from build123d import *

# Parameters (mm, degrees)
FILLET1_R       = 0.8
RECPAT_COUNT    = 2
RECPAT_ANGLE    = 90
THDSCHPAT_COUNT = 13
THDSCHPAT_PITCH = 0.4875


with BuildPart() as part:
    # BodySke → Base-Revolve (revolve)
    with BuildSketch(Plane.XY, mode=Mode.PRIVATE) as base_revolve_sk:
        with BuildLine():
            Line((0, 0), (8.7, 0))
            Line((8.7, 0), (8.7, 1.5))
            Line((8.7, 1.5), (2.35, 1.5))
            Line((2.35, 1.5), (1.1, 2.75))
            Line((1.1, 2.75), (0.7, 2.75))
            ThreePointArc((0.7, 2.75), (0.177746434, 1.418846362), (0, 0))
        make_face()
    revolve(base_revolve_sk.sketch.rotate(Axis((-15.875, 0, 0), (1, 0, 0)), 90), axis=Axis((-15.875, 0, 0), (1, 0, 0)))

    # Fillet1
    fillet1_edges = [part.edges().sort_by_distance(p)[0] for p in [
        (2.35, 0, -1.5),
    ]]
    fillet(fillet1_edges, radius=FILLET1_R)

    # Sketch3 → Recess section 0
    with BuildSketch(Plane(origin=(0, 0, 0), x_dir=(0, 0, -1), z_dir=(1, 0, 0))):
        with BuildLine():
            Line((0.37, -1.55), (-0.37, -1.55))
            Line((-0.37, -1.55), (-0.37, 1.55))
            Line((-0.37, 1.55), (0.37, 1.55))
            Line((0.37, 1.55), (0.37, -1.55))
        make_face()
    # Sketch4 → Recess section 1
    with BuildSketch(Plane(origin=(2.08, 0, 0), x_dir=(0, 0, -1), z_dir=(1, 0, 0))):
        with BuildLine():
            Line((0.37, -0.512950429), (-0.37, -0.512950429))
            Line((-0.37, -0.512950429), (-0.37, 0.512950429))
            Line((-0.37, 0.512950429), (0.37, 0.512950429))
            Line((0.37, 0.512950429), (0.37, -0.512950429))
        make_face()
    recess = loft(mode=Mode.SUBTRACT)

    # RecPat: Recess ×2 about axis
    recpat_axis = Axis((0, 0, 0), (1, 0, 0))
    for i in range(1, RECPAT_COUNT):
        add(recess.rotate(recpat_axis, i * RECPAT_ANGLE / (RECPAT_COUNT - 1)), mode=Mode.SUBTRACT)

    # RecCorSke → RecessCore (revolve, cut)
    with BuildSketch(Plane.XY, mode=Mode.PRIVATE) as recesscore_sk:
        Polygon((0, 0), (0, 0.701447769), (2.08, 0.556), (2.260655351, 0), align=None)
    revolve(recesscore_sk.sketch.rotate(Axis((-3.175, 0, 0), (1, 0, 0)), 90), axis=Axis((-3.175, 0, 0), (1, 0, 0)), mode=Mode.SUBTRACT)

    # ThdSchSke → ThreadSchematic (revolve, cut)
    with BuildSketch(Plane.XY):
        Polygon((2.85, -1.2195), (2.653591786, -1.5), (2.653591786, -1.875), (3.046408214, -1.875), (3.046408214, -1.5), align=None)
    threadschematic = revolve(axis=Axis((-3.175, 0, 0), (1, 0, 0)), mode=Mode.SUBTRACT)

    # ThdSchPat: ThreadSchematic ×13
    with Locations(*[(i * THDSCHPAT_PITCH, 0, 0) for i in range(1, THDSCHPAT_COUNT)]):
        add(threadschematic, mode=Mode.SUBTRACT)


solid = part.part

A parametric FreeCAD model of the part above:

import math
import FreeCAD as App
import Part
import Sketcher
from FreeCAD import Vector
Q = App.Units.Quantity


def edges_at(feature, points):
    """Names of the edges that pass closest to the given points."""
    edges = feature.Shape.Edges
    near = lambda p: min(range(len(edges)), key=lambda i: edges[i].distToShape(Part.Vertex(*p))[0])
    return sorted({f"Edge{near(p) + 1}" for p in points})

doc = App.newDocument("Part")
body = doc.addObject("PartDesign::Body", "Body")

# Sketch on XY plane
sketch1 = doc.addObject("Sketcher::SketchObject", "Sketch")
body.addObject(sketch1)
sketch1.AttachmentSupport = (doc.XY_Plane, [""])
sketch1.MapMode = "FlatFace"
sketch1.addGeometry([
    Part.LineSegment(Vector(0, 0, 0), Vector(8.7, 0, 0)),  # 0
    Part.LineSegment(Vector(8.7, 0, 0), Vector(8.7, 1.5, 0)),  # 1
    Part.LineSegment(Vector(8.7, 1.5, 0), Vector(2.35, 1.5, 0)),  # 2
    Part.LineSegment(Vector(2.35, 1.5, 0), Vector(1.1, 2.75, 0)),  # 3
    Part.LineSegment(Vector(1.1, 2.75, 0), Vector(0.7, 2.75, 0)),  # 4
    Part.ArcOfCircle(Part.Circle(Vector(5.75, 0, 0), Vector(0, 0, 1), 5.75), math.radians(151), math.radians(180)),  # 5
], False)
sketch1.addConstraint([
    Sketcher.Constraint("Coincident", 0, 2, 1, 1),
    Sketcher.Constraint("Coincident", 1, 2, 2, 1),
    Sketcher.Constraint("Coincident", 2, 2, 3, 1),
    Sketcher.Constraint("Coincident", 3, 2, 4, 1),
    Sketcher.Constraint("Coincident", 4, 2, 5, 1),
    Sketcher.Constraint("Coincident", 5, 2, 0, 1),
    Sketcher.Constraint("Horizontal", 0),
    Sketcher.Constraint("Vertical", 1),
    Sketcher.Constraint("Horizontal", 2),
    Sketcher.Constraint("Horizontal", 4),
    Sketcher.Constraint("Coincident", 5, 2, -1, 1),
    Sketcher.Constraint("PointOnObject", 5, 3, -1),
    Sketcher.Constraint("Angle", 3, Q("135 deg")),
    Sketcher.Constraint("DistanceX", 0, 1, 0, 2, 8.7),
    Sketcher.Constraint("DistanceX", 4, 2, 4, 1, 0.4),
    Sketcher.Constraint("DistanceY", 1, 1, 1, 2, 1.5),
    Sketcher.Constraint("DistanceX", 4, 2, 1, 2, 8.0),
    Sketcher.Constraint("DistanceX", 2, 2, 2, 1, 6.35),
])
revolution = doc.addObject("PartDesign::Revolution", "Revolution")
body.addObject(revolution)
revolution.Profile = sketch1
revolution.ReferenceAxis = (sketch1, ["H_Axis"])
revolution.Angle = 360
doc.recompute()

fillet = doc.addObject("PartDesign::Fillet", "Fillet")
body.addObject(fillet)
fillet.Base = (revolution, edges_at(revolution, [(2.35, 0, -1.5)]))
fillet.Radius = 0.8

# Sketch on YZ plane
sketch2 = doc.addObject("Sketcher::SketchObject", "Sketch001")
body.addObject(sketch2)
sketch2.AttachmentSupport = (doc.YZ_Plane, [""])
sketch2.MapMode = "FlatFace"
sketch2.addGeometry([
    Part.LineSegment(Vector(-1.6, 0.4, 0), Vector(-1.6, -0.4, 0)),
    Part.LineSegment(Vector(-1.6, -0.4, 0), Vector(1.6, -0.4, 0)),
    Part.LineSegment(Vector(1.6, -0.4, 0), Vector(1.6, 0.4, 0)),
    Part.LineSegment(Vector(1.6, 0.4, 0), Vector(-1.6, 0.4, 0)),
], False)
sketch2.addConstraint([
    Sketcher.Constraint("Coincident", 0, 2, 1, 1),
    Sketcher.Constraint("Coincident", 1, 2, 2, 1),
    Sketcher.Constraint("Coincident", 2, 2, 3, 1),
    Sketcher.Constraint("Coincident", 3, 2, 0, 1),
    Sketcher.Constraint("Vertical", 0),
    Sketcher.Constraint("Horizontal", 1),
    Sketcher.Constraint("Vertical", 2),
    Sketcher.Constraint("Horizontal", 3),
    Sketcher.Constraint("Symmetric", 0, 2, 2, 2, -1, 1),
    Sketcher.Constraint("DistanceX", 1, 1, 1, 2, 3.1),
    Sketcher.Constraint("DistanceY", 0, 2, 0, 1, 0.74),
])

# Sketch on YZ plane
sketch3 = doc.addObject("Sketcher::SketchObject", "Sketch002")
body.addObject(sketch3)
sketch3.AttachmentSupport = (doc.YZ_Plane, [""])
sketch3.MapMode = "FlatFace"
sketch3.AttachmentOffset = App.Placement(Vector(0, 0, 2.08), App.Rotation())
sketch3.addGeometry([
    Part.LineSegment(Vector(-0.5, 0.4, 0), Vector(-0.5, -0.4, 0)),
    Part.LineSegment(Vector(-0.5, -0.4, 0), Vector(0.5, -0.4, 0)),
    Part.LineSegment(Vector(0.5, -0.4, 0), Vector(0.5, 0.4, 0)),
    Part.LineSegment(Vector(0.5, 0.4, 0), Vector(-0.5, 0.4, 0)),
], False)
sketch3.addConstraint([
    Sketcher.Constraint("Coincident", 0, 2, 1, 1),
    Sketcher.Constraint("Coincident", 1, 2, 2, 1),
    Sketcher.Constraint("Coincident", 2, 2, 3, 1),
    Sketcher.Constraint("Coincident", 3, 2, 0, 1),
    Sketcher.Constraint("Vertical", 0),
    Sketcher.Constraint("Horizontal", 1),
    Sketcher.Constraint("Vertical", 2),
    Sketcher.Constraint("Horizontal", 3),
    Sketcher.Constraint("Symmetric", 0, 2, 2, 2, -1, 1),
    Sketcher.Constraint("DistanceY", 0, 2, 0, 1, 0.74),
    Sketcher.Constraint("DistanceX", 1, 1, 1, 2, 1.025901),
])

subtractiveloft = doc.addObject("PartDesign::SubtractiveLoft", "SubtractiveLoft")
body.addObject(subtractiveloft)
subtractiveloft.Profile = sketch2
subtractiveloft.Sections = [sketch3]
doc.recompute()

polarpattern = doc.addObject("PartDesign::PolarPattern", "PolarPattern")
body.addObject(polarpattern)
polarpattern.Originals = [subtractiveloft]
polarpattern.Axis = (doc.X_Axis, [""])
polarpattern.Angle = 90
polarpattern.Occurrences = 2
body.Tip = polarpattern

# Sketch on XY plane
sketch4 = doc.addObject("Sketcher::SketchObject", "Sketch003")
body.addObject(sketch4)
sketch4.AttachmentSupport = (doc.XY_Plane, [""])
sketch4.MapMode = "FlatFace"
sketch4.addGeometry([
    Part.LineSegment(Vector(0, 0.7, 0), Vector(0, 0, 0)),
    Part.LineSegment(Vector(0, 0, 0), Vector(2.3, 0, 0)),
    Part.LineSegment(Vector(2.3, 0, 0), Vector(2.1, 0.6, 0)),
    Part.LineSegment(Vector(2.1, 0.6, 0), Vector(0, 0.7, 0)),
], False)
sketch4.addConstraint([
    Sketcher.Constraint("Coincident", 0, 2, 1, 1),
    Sketcher.Constraint("Coincident", 1, 2, 2, 1),
    Sketcher.Constraint("Coincident", 2, 2, 3, 1),
    Sketcher.Constraint("Coincident", 3, 2, 0, 1),
    Sketcher.Constraint("Vertical", 0),
    Sketcher.Constraint("Horizontal", 1),
    Sketcher.Constraint("Coincident", 0, 2, -1, 1),
    Sketcher.Constraint("Angle", 2, Q("108 deg")),
    Sketcher.Constraint("Angle", 3, Q("176 deg")),
    Sketcher.Constraint("DistanceX", -1, 1, 2, 2, 2.08),
    Sketcher.Constraint("DistanceY", -1, 1, 2, 2, 0.556),
])
groove = doc.addObject("PartDesign::Groove", "Groove")
body.addObject(groove)
groove.Profile = sketch4
groove.ReferenceAxis = (sketch4, ["H_Axis"])
groove.Angle = 360

# Sketch on XY plane
sketch5 = doc.addObject("Sketcher::SketchObject", "Sketch004")
body.addObject(sketch5)
sketch5.AttachmentSupport = (doc.XY_Plane, [""])
sketch5.MapMode = "FlatFace"
sketch5.addGeometry([
    Part.LineSegment(Vector(2.85, -1.22, 0), Vector(2.65, -1.5, 0)),  # 0
    Part.LineSegment(Vector(2.65, -1.5, 0), Vector(2.65, -1.88, 0)),  # 1
    Part.LineSegment(Vector(2.65, -1.88, 0), Vector(3.05, -1.88, 0)),  # 2
    Part.LineSegment(Vector(3.05, -1.88, 0), Vector(3.05, -1.5, 0)),  # 3
    Part.LineSegment(Vector(3.05, -1.5, 0), Vector(2.85, -1.22, 0)),  # 4
], False)
sketch5.addConstraint([
    Sketcher.Constraint("Coincident", 0, 2, 1, 1),
    Sketcher.Constraint("Coincident", 1, 2, 2, 1),
    Sketcher.Constraint("Coincident", 2, 2, 3, 1),
    Sketcher.Constraint("Coincident", 3, 2, 4, 1),
    Sketcher.Constraint("Coincident", 4, 2, 0, 1),
    Sketcher.Constraint("Vertical", 1),
    Sketcher.Constraint("Horizontal", 2),
    Sketcher.Constraint("Vertical", 3),
    Sketcher.Constraint("Horizontal", 0, 2, 3, 2),
    Sketcher.Constraint("Equal", 0, 4),
    Sketcher.Constraint("Angle", 0, Q("-125 deg")),
    Sketcher.Constraint("DistanceY", 0, 2, -1, 1, 1.5),
    Sketcher.Constraint("DistanceY", 1, 2, 1, 1, 0.375),
    Sketcher.Constraint("DistanceX", -1, 1, 4, 2, 2.85),
    Sketcher.Constraint("DistanceY", 4, 2, -1, 1, 1.2195),
])
groove2 = doc.addObject("PartDesign::Groove", "Groove001")
body.addObject(groove2)
groove2.Profile = sketch5
groove2.ReferenceAxis = (sketch5, ["H_Axis"])
groove2.Angle = 360
doc.recompute()

linearpattern = doc.addObject("PartDesign::LinearPattern", "LinearPattern")
body.addObject(linearpattern)
linearpattern.Originals = [groove2]
linearpattern.Direction = (doc.X_Axis, [""])
linearpattern.Mode = "offset"
linearpattern.Offset = 0.4875
linearpattern.Occurrences = 13
body.Tip = linearpattern

doc.recompute()
